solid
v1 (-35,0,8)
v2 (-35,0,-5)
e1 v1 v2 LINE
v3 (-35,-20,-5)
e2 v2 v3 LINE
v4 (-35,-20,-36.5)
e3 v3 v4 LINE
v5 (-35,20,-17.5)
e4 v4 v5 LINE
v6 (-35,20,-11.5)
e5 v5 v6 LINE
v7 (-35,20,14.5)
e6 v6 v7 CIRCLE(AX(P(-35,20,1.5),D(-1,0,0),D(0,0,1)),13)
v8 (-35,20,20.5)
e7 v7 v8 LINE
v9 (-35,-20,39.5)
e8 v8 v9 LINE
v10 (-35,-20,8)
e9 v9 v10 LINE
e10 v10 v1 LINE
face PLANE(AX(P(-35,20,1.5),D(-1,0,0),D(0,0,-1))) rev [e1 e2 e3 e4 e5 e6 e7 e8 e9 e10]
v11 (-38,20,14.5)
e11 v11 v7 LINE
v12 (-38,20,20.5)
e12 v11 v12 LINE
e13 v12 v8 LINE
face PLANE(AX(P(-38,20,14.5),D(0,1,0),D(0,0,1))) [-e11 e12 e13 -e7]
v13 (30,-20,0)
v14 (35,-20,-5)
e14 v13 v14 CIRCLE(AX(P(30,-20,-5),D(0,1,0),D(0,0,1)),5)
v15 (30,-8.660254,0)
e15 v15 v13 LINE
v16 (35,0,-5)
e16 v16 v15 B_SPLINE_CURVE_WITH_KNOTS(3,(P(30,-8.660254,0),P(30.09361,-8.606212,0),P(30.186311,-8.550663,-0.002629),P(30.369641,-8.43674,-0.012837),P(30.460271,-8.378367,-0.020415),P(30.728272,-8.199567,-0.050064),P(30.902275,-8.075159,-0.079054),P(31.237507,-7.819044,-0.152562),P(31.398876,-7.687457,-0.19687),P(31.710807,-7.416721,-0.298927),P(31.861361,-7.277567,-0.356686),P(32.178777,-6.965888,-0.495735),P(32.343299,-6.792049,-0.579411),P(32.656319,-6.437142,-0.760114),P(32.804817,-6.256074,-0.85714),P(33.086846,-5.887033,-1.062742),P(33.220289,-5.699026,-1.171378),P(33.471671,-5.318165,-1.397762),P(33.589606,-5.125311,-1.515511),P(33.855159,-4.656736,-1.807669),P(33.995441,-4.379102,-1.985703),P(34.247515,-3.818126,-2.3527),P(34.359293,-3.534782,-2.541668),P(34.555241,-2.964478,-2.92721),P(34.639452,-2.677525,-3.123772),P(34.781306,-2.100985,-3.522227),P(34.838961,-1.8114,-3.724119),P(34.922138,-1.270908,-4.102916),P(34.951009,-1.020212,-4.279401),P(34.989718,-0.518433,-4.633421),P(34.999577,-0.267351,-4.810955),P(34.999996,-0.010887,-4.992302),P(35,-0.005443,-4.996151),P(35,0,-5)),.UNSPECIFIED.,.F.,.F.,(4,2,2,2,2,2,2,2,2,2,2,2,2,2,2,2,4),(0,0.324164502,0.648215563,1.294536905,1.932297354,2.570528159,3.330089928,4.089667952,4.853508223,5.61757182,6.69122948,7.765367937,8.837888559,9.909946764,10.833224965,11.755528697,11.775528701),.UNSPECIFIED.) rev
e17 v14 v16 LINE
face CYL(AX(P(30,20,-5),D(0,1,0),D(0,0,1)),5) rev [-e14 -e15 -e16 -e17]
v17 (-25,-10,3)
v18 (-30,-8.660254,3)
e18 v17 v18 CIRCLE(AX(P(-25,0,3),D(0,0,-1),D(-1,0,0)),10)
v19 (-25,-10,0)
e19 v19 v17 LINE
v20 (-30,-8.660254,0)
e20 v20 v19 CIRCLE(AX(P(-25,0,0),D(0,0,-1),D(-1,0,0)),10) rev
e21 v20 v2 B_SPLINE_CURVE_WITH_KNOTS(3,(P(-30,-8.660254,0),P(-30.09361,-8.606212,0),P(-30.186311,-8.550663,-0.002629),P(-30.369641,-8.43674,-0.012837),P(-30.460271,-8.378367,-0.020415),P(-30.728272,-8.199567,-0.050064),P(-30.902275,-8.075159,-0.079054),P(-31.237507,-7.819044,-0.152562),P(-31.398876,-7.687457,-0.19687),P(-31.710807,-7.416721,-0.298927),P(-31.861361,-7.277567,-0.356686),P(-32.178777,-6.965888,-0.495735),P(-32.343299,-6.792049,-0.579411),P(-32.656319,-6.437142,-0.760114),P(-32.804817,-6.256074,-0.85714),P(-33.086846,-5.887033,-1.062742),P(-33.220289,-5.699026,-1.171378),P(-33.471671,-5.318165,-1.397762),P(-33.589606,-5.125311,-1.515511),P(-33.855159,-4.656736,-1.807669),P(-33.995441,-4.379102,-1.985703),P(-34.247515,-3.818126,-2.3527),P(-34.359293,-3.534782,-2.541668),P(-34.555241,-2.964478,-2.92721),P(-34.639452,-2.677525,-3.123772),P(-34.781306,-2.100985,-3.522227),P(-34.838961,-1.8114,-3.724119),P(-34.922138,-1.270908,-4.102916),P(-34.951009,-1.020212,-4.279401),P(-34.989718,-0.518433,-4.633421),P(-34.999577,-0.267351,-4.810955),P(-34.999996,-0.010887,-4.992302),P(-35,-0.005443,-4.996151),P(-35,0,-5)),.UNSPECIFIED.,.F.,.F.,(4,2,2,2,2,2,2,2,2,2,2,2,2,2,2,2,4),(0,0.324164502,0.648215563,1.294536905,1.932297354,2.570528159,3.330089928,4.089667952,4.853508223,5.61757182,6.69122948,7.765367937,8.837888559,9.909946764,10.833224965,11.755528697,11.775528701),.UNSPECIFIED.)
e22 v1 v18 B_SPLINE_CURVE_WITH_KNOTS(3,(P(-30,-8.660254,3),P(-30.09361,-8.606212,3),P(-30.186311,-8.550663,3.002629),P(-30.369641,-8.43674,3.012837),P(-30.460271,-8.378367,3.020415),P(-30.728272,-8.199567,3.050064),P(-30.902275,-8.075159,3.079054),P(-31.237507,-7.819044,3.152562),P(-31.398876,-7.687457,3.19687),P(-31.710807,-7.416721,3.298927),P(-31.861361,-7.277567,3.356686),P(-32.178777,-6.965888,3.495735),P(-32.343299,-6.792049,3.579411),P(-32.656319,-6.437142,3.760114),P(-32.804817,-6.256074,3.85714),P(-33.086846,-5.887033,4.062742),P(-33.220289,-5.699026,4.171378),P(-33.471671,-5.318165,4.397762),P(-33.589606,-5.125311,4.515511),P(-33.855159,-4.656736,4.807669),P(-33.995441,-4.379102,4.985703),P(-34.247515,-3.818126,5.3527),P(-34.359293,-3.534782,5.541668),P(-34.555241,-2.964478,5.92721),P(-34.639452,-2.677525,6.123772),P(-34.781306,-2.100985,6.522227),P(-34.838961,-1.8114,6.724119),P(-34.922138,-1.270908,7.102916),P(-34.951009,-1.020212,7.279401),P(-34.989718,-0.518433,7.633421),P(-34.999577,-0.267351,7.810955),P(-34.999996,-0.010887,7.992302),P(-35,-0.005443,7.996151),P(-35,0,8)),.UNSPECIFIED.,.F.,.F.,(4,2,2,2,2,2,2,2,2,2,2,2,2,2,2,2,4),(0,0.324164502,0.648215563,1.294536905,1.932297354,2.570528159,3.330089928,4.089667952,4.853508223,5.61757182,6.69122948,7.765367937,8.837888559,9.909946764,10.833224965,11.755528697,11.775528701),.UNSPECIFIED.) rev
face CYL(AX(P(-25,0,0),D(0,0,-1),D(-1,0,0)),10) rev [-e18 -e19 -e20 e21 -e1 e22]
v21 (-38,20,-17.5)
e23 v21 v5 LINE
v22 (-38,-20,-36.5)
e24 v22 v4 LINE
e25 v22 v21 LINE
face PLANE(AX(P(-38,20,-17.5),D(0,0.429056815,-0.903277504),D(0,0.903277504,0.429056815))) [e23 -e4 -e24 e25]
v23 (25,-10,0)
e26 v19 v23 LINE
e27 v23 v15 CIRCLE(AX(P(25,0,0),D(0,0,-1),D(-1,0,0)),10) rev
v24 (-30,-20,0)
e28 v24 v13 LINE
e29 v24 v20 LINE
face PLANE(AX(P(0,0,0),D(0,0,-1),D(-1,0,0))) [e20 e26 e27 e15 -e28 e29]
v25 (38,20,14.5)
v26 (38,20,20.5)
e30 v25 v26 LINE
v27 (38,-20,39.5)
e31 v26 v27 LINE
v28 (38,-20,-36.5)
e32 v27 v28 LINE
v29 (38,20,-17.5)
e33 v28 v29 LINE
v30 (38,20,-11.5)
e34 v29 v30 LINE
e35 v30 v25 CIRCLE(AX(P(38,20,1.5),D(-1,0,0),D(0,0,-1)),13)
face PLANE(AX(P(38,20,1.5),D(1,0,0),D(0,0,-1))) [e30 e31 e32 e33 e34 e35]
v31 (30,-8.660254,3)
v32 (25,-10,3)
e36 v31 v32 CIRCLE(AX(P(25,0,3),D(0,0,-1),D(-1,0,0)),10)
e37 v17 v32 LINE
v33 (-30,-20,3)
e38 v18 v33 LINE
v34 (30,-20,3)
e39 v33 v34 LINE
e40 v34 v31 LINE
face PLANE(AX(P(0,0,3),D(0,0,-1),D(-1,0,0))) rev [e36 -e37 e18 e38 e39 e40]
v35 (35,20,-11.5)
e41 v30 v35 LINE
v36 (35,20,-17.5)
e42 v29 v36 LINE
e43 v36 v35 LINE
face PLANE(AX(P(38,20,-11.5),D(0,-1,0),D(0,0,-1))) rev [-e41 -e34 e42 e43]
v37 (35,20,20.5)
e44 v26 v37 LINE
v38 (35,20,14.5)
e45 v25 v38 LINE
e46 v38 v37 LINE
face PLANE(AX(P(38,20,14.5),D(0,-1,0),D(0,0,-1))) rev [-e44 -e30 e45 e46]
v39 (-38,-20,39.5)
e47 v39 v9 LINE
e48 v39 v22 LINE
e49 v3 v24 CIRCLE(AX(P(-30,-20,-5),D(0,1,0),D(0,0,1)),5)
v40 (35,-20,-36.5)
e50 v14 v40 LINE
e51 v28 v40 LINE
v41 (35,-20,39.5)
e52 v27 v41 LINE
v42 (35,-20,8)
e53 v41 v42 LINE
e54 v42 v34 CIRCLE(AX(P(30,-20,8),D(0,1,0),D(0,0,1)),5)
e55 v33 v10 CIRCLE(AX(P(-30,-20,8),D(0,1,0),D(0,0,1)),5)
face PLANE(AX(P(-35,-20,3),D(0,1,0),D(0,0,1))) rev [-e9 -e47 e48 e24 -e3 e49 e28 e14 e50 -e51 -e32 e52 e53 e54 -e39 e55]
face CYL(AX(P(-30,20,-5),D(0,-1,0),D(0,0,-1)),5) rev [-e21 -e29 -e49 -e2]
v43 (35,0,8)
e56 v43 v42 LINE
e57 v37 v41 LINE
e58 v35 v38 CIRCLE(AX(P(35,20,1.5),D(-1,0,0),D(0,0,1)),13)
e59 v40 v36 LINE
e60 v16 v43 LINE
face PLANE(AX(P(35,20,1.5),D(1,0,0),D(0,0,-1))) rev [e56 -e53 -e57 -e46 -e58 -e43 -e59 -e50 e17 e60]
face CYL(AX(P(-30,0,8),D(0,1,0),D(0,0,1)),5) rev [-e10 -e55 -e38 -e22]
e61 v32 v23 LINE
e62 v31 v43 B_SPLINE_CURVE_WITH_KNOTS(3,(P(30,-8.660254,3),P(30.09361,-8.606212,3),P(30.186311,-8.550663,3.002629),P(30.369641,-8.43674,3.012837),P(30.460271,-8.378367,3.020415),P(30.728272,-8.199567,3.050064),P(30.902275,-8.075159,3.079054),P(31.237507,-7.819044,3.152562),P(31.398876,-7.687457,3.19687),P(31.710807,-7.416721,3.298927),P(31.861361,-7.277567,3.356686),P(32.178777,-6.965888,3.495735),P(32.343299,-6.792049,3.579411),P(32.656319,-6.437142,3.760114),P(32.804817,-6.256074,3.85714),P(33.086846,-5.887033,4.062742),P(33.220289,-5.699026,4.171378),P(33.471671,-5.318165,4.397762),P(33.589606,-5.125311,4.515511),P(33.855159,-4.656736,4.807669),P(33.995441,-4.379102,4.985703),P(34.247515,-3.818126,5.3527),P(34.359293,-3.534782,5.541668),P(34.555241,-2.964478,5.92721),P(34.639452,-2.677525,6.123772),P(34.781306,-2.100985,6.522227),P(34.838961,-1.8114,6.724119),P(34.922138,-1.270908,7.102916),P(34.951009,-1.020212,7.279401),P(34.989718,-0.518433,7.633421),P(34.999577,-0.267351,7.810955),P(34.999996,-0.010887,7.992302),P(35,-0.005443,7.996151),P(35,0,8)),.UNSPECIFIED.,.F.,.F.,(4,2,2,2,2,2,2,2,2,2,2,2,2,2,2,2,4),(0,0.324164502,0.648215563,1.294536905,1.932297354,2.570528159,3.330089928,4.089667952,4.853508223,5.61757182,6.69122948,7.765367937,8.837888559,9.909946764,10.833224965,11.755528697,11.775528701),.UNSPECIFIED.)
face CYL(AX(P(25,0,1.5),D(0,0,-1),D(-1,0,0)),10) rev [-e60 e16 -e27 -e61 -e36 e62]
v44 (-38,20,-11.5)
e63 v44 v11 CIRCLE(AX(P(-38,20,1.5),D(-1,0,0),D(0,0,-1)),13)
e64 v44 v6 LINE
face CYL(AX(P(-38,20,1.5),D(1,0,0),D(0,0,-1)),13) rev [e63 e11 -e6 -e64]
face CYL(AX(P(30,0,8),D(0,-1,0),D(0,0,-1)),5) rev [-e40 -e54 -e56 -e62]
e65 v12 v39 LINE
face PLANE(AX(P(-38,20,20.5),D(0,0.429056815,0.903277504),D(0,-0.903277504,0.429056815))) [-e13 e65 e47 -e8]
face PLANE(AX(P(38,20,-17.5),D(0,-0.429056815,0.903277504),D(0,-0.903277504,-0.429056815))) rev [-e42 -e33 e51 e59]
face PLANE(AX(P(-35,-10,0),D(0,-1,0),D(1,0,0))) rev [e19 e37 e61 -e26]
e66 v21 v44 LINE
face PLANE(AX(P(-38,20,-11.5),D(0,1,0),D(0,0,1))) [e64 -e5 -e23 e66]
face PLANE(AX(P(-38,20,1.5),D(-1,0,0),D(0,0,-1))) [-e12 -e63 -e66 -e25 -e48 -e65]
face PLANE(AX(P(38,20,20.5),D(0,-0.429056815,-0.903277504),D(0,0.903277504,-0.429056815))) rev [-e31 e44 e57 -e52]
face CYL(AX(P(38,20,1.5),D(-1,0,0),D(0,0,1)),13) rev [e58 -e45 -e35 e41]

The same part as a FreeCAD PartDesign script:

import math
import FreeCAD as App
import Part
import Sketcher
from FreeCAD import Vector
Q = App.Units.Quantity


def edges_at(feature, points):
    """Names of the edges that pass closest to the given points."""
    edges = feature.Shape.Edges
    near = lambda p: min(range(len(edges)), key=lambda i: edges[i].distToShape(Part.Vertex(*p))[0])
    return sorted({f"Edge{near(p) + 1}" for p in points})

doc = App.newDocument("Part")
body = doc.addObject("PartDesign::Body", "Body")

# Sketch on XY plane
sketch1 = body.newObject("Sketcher::SketchObject", "Sketch")
sketch1.AttachmentSupport = (doc.getObject("XY_Plane"), [""])
sketch1.MapMode = "FlatFace"
sketch1.addGeometry([
    Part.LineSegment(Vector(-35, 20, 0), Vector(-35, -20, 0)),
    Part.LineSegment(Vector(-35, -20, 0), Vector(35, -20, 0)),
    Part.LineSegment(Vector(35, -20, 0), Vector(35, 20, 0)),
    Part.LineSegment(Vector(35, 20, 0), Vector(-35, 20, 0)),
], False)
sketch1.addConstraint([
    Sketcher.Constraint("Coincident", 0, 2, 1, 1),
    Sketcher.Constraint("Coincident", 1, 2, 2, 1),
    Sketcher.Constraint("Coincident", 2, 2, 3, 1),
    Sketcher.Constraint("Coincident", 3, 2, 0, 1),
    Sketcher.Constraint("Vertical", 0),
    Sketcher.Constraint("Horizontal", 1),
    Sketcher.Constraint("Vertical", 2),
    Sketcher.Constraint("Horizontal", 3),
    Sketcher.Constraint("Symmetric", 0, 2, 2, 2, -1, 1),
    Sketcher.Constraint("DistanceX", 1, 1, 1, 2, Q("70 mm")),
    Sketcher.Constraint("DistanceY", 0, 2, 0, 1, Q("40 mm")),
])
pad1 = body.newObject("PartDesign::Pad", "Pad")
pad1.Profile = sketch1
pad1.Length = 3

# Sketch on YZ plane
sketch2 = body.newObject("Sketcher::SketchObject", "Sketch001")
sketch2.AttachmentSupport = (doc.getObject("YZ_Plane"), [""])
sketch2.MapMode = "FlatFace"
sketch2.AttachmentOffset = App.Placement(Vector(0, 0, 35), App.Rotation())
sketch2.addGeometry([
    Part.LineSegment(Vector(20, 14.5, 0), Vector(20, 20.5, 0)),  # 0
    Part.LineSegment(Vector(20, 20.5, 0), Vector(-20, 39.5, 0)),  # 1
    Part.LineSegment(Vector(-20, 39.5, 0), Vector(-20, -36.5, 0)),  # 2
    Part.LineSegment(Vector(-20, -36.5, 0), Vector(20, -17.5, 0)),  # 3
    Part.LineSegment(Vector(20, -17.5, 0), Vector(20, -11.5, 0)),  # 4
    Part.ArcOfCircle(Part.Circle(Vector(20, 1.5, 0), Vector(0, 0, 1), 13), math.radians(-180), math.radians(-90)),  # 5
    Part.ArcOfCircle(Part.Circle(Vector(20, 1.5, 0), Vector(0, 0, 1), 13), math.radians(90), math.radians(180)),  # 6
], False)
sketch2.addConstraint([
    Sketcher.Constraint("Coincident", 0, 2, 1, 1),
    Sketcher.Constraint("Coincident", 1, 2, 2, 1),
    Sketcher.Constraint("Coincident", 2, 2, 3, 1),
    Sketcher.Constraint("Coincident", 3, 2, 4, 1),
    Sketcher.Constraint("Coincident", 4, 2, 5, 2),
    Sketcher.Constraint("Tangent", 5, 1, 6, 2),
    Sketcher.Constraint("Coincident", 6, 1, 0, 1),
    Sketcher.Constraint("Vertical", 0),
    Sketcher.Constraint("Vertical", 2),
    Sketcher.Constraint("Vertical", 4),
    Sketcher.Constraint("Equal", 5, 6),
    Sketcher.Constraint("Horizontal", 6, 3, 5, 1),
    Sketcher.Constraint("Vertical", 6, 3, 0, 2),
    Sketcher.Constraint("Vertical", 0, 2, 3, 2),
    Sketcher.Constraint("Equal", 0, 4),
    Sketcher.Constraint("Equal", 1, 3),
    Sketcher.Constraint("Radius", 5, Q("13 mm")),
    Sketcher.Constraint("DistanceY", 0, 1, 0, 2, Q("6 mm")),
    Sketcher.Constraint("DistanceY", 2, 2, 2, 1, Q("76 mm")),
    Sketcher.Constraint("DistanceX", -1, 1, 5, 3, Q("20 mm")),
    Sketcher.Constraint("DistanceX", 1, 2, -1, 1, Q("20 mm")),
    Sketcher.Constraint("DistanceY", -1, 1, 5, 3, Q("1.5 mm")),
])
pad2 = body.newObject("PartDesign::Pad", "Pad001")
pad2.Profile = sketch2
pad2.Length = 3
doc.recompute()

mirrored = body.newObject("PartDesign::Mirrored", "Mirrored")
mirrored.Originals = [pad2]
mirrored.MirrorPlane = (doc.getObject("YZ_Plane"), [""])
body.Tip = mirrored

# Sketch on XY plane
sketch3 = body.newObject("Sketcher::SketchObject", "Sketch002")
sketch3.AttachmentSupport = (doc.getObject("XY_Plane"), [""])
sketch3.MapMode = "FlatFace"
sketch3.AttachmentOffset = App.Placement(Vector(0, 0, 3), App.Rotation())
sketch3.addGeometry([
    Part.LineSegment(Vector(-35, 20, 0), Vector(-35, -10, 0)),
    Part.LineSegment(Vector(-35, -10, 0), Vector(35, -10, 0)),
    Part.LineSegment(Vector(35, -10, 0), Vector(35, 20, 0)),
    Part.LineSegment(Vector(35, 20, 0), Vector(-35, 20, 0)),
], False)
sketch3.addConstraint([
    Sketcher.Constraint("Coincident", 0, 2, 1, 1),
    Sketcher.Constraint("Coincident", 1, 2, 2, 1),
    Sketcher.Constraint("Coincident", 2, 2, 3, 1),
    Sketcher.Constraint("Coincident", 3, 2, 0, 1),
    Sketcher.Constraint("Vertical", 0),
    Sketcher.Constraint("Horizontal", 1),
    Sketcher.Constraint("Vertical", 2),
    Sketcher.Constraint("Horizontal", 3),
    Sketcher.Constraint("DistanceX", 1, 1, 1, 2, Q("70 mm")),
    Sketcher.Constraint("DistanceY", 0, 2, 0, 1, Q("30 mm")),
    Sketcher.Constraint("DistanceX", 0, 2, -1, 1, Q("35 mm")),
    Sketcher.Constraint("DistanceY", 0, 2, -1, 1, Q("10 mm")),
])
pocket1 = body.newObject("PartDesign::Pocket", "Pocket")
pocket1.Profile = sketch3
pocket1.Length = 3
doc.recompute()

fillet = body.newObject("PartDesign::Fillet", "Fillet")
fillet.Base = (pocket1, edges_at(pocket1, [(-35, -10, 1.5), (35, -10, 1.5)]))
fillet.Radius = 10
doc.recompute()

fillet2 = body.newObject("PartDesign::Fillet", "Fillet001")
fillet2.Base = (fillet, edges_at(fillet, [
    (35, -10, 0),
    (-35, -10, 0),
    (-35, -10, 3),
    (35, -10, 3),
]))
fillet2.Radius = 5

doc.recompute()
